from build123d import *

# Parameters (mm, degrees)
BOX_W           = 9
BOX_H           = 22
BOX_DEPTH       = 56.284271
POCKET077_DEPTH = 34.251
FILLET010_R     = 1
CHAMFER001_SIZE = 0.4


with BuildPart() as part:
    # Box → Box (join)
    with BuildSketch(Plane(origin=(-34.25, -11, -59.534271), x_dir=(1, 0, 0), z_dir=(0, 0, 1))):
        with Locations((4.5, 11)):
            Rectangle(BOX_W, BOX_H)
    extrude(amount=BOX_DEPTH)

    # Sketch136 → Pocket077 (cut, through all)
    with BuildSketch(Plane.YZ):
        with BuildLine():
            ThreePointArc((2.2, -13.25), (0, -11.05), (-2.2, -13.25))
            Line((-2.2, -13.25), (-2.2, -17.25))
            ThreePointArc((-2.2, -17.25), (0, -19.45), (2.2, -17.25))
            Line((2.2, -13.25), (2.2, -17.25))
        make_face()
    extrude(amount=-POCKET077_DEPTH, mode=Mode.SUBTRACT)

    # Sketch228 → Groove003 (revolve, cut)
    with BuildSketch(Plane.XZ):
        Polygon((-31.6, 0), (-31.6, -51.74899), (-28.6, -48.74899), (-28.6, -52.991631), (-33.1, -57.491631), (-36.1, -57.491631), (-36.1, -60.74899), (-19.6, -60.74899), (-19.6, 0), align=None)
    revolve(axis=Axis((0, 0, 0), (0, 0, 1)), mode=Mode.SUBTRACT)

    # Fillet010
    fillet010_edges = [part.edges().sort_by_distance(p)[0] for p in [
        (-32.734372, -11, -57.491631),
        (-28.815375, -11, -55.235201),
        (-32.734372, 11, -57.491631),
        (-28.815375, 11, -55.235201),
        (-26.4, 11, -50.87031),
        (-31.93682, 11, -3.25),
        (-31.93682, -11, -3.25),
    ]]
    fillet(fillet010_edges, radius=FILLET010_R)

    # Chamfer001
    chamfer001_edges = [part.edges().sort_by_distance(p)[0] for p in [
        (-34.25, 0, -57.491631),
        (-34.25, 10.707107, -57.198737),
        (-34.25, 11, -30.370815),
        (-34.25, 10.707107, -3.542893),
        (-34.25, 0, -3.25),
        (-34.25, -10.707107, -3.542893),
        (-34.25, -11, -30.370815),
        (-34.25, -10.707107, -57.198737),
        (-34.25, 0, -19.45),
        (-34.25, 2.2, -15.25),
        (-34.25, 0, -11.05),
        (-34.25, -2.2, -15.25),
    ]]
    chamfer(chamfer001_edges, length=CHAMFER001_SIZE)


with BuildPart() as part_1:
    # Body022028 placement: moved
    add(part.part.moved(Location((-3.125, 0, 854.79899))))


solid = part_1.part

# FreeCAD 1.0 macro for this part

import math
import FreeCAD as App
import Part
import Sketcher
Q = App.Units.Quantity


def edges_at(feature, points):
    """Names of the edges that pass closest to the given points."""
    edges = feature.Shape.Edges
    near = lambda p: min(range(len(edges)), key=lambda i: edges[i].distToShape(Part.Vertex(*p))[0])
    return sorted({f"Edge{near(p) + 1}" for p in points})

doc = App.newDocument("Part")
body = doc.addObject("PartDesign::Body", "Body")

# Sketch on XY plane
sketch1 = doc.addObject("Sketcher::SketchObject", "Sketch")
body.addObject(sketch1)
sketch1.AttachmentSupport = (doc.XY_Plane, [""])
sketch1.MapMode = "FlatFace"
sketch1.AttachmentOffset = App.Placement(App.Vector(0, 0, -59.534271), App.Rotation())
sketch1.addGeometry(Part.LineSegment(App.Vector(-34, 11, 0), App.Vector(-34, -11, 0)), False)
sketch1.addGeometry(Part.LineSegment(App.Vector(-34, -11, 0), App.Vector(-25, -11, 0)), False)
sketch1.addGeometry(Part.LineSegment(App.Vector(-25, -11, 0), App.Vector(-25, 11, 0)), False)
sketch1.addGeometry(Part.LineSegment(App.Vector(-25, 11, 0), App.Vector(-34, 11, 0)), False)
sketch1.addConstraint(Sketcher.Constraint("Coincident", 0, 2, 1, 1))
sketch1.addConstraint(Sketcher.Constraint("Coincident", 1, 2, 2, 1))
sketch1.addConstraint(Sketcher.Constraint("Coincident", 2, 2, 3, 1))
sketch1.addConstraint(Sketcher.Constraint("Coincident", 3, 2, 0, 1))
sketch1.addConstraint(Sketcher.Constraint("Vertical", 0))
sketch1.addConstraint(Sketcher.Constraint("Horizontal", 1))
sketch1.addConstraint(Sketcher.Constraint("Vertical", 2))
sketch1.addConstraint(Sketcher.Constraint("Horizontal", 3))
sketch1.addConstraint(Sketcher.Constraint("DistanceX", 1, 1, 1, 2, Q("9 mm")))
sketch1.addConstraint(Sketcher.Constraint("DistanceY", 0, 2, 0, 1, Q("22 mm")))
sketch1.addConstraint(Sketcher.Constraint("DistanceY", 0, 2, -1, 1, Q("11 mm")))
sketch1.addConstraint(Sketcher.Constraint("DistanceX", 0, 2, -1, 1, Q("34.25 mm")))
pad1 = doc.addObject("PartDesign::Pad", "Pad")
body.addObject(pad1)
pad1.Profile = sketch1
pad1.Length = 56.284271

# Sketch on YZ plane
sketch2 = doc.addObject("Sketcher::SketchObject", "Sketch001")
body.addObject(sketch2)
sketch2.AttachmentSupport = (doc.YZ_Plane, [""])
sketch2.MapMode = "FlatFace"
sketch2.addGeometry(Part.ArcOfCircle(Part.Circle(App.Vector(0, -13.2, 0), App.Vector(0, 0, 1), 2.2), math.radians(0), math.radians(180)), False)
sketch2.addGeometry(Part.LineSegment(App.Vector(-2.2, -13.2, 0), App.Vector(-2.2, -17.2, 0)), False)
sketch2.addGeometry(Part.ArcOfCircle(Part.Circle(App.Vector(0, -17.2, 0), App.Vector(0, 0, 1), 2.2), math.radians(180), math.radians(360)), False)
sketch2.addGeometry(Part.LineSegment(App.Vector(2.2, -17.2, 0), App.Vector(2.2, -13.2, 0)), False)
sketch2.addConstraint(Sketcher.Constraint("Tangent", 0, 2, 1, 1))
sketch2.addConstraint(Sketcher.Constraint("Tangent", 1, 2, 2, 1))
sketch2.addConstraint(Sketcher.Constraint("Tangent", 2, 2, 3, 1))
sketch2.addConstraint(Sketcher.Constraint("Tangent", 3, 2, 0, 1))
sketch2.addConstraint(Sketcher.Constraint("Vertical", 1))
sketch2.addConstraint(Sketcher.Constraint("Vertical", 3))
sketch2.addConstraint(Sketcher.Constraint("PointOnObject", 0, 3, -2))
sketch2.addConstraint(Sketcher.Constraint("Radius", 0, Q("2.2 mm")))
sketch2.addConstraint(Sketcher.Constraint("DistanceY", 1, 2, 1, 1, Q("4 mm")))
sketch2.addConstraint(Sketcher.Constraint("DistanceY", 0, 3, -1, 1, Q("13.25 mm")))
pocket1 = doc.addObject("PartDesign::Pocket", "Pocket")
body.addObject(pocket1)
pocket1.Profile = sketch2
pocket1.Type = "ThroughAll"

# Sketch on XZ plane
sketch3 = doc.addObject("Sketcher::SketchObject", "Sketch002")
body.addObject(sketch3)
sketch3.AttachmentSupport = (doc.XZ_Plane, [""])
sketch3.MapMode = "FlatFace"
sketch3.addGeometry(Part.LineSegment(App.Vector(-31.6, 0, 0), App.Vector(-31.6, -51.7, 0)), False)
sketch3.addGeometry(Part.LineSegment(App.Vector(-31.6, -51.7, 0), App.Vector(-28.6, -48.7, 0)), False)
sketch3.addGeometry(Part.LineSegment(App.Vector(-28.6, -48.7, 0), App.Vector(-28.6, -53, 0)), False)
sketch3.addGeometry(Part.LineSegment(App.Vector(-28.6, -53, 0), App.Vector(-33.1, -57.5, 0)), False)
sketch3.addGeometry(Part.LineSegment(App.Vector(-33.1, -57.5, 0), App.Vector(-36.1, -57.5, 0)), False)
sketch3.addGeometry(Part.LineSegment(App.Vector(-36.1, -57.5, 0), App.Vector(-36.1, -60.7, 0)), False)
sketch3.addGeometry(Part.LineSegment(App.Vector(-36.1, -60.7, 0), App.Vector(-19.6, -60.7, 0)), False)
sketch3.addGeometry(Part.LineSegment(App.Vector(-19.6, -60.7, 0), App.Vector(-19.6, 0, 0)), False)
sketch3.addGeometry(Part.LineSegment(App.Vector(-19.6, 0, 0), App.Vector(-31.6, 0, 0)), False)
sketch3.addConstraint(Sketcher.Constraint("Coincident", 0, 2, 1, 1))
sketch3.addConstraint(Sketcher.Constraint("Coincident", 1, 2, 2, 1))
sketch3.addConstraint(Sketcher.Constraint("Coincident", 2, 2, 3, 1))
sketch3.addConstraint(Sketcher.Constraint("Coincident", 3, 2, 4, 1))
sketch3.addConstraint(Sketcher.Constraint("Coincident", 4, 2, 5, 1))
sketch3.addConstraint(Sketcher.Constraint("Coincident", 5, 2, 6, 1))
sketch3.addConstraint(Sketcher.Constraint("Coincident", 6, 2, 7, 1))
sketch3.addConstraint(Sketcher.Constraint("Coincident", 7, 2, 8, 1))
sketch3.addConstraint(Sketcher.Constraint("Coincident", 8, 2, 0, 1))
sketch3.addConstraint(Sketcher.Constraint("Vertical", 0))
sketch3.addConstraint(Sketcher.Constraint("Vertical", 2))
sketch3.addConstraint(Sketcher.Constraint("Horizontal", 4))
sketch3.addConstraint(Sketcher.Constraint("Vertical", 5))
sketch3.addConstraint(Sketcher.Constraint("Horizontal", 6))
sketch3.addConstraint(Sketcher.Constraint("Vertical", 7))
sketch3.addConstraint(Sketcher.Constraint("Horizontal", 8))
sketch3.addConstraint(Sketcher.Constraint("PointOnObject", 7, 2, -1))
sketch3.addConstraint(Sketcher.Constraint("Parallel", 1, 3))
sketch3.addConstraint(Sketcher.Constraint("DistanceX", 4, 2, 4, 1, Q("3 mm")))
sketch3.addConstraint(Sketcher.Constraint("DistanceX", 8, 2, 8, 1, Q("12 mm")))
sketch3.addConstraint(Sketcher.Constraint("Angle", 1, Q("45 deg")))
sketch3.addConstraint(Sketcher.Constraint("DistanceX", 6, 1, 6, 2, Q("16.5 mm")))
sketch3.addConstraint(Sketcher.Constraint("DistanceX", 0, 2, 1, 2, Q("3 mm")))
sketch3.addConstraint(Sketcher.Constraint("DistanceY", 5, 2, 0, 2, Q("9 mm")))
sketch3.addConstraint(Sketcher.Constraint("DistanceX", 0, 2, -1, 1, Q("31.6 mm")))
sketch3.addConstraint(Sketcher.Constraint("DistanceY", 0, 2, 0, 1, Q("51.74899 mm")))
sketch3.addConstraint(Sketcher.Constraint("DistanceY", 2, 2, 2, 1, Q("4.242641 mm")))
groove = doc.addObject("PartDesign::Groove", "Groove")
body.addObject(groove)
groove.Profile = sketch3
groove.ReferenceAxis = (sketch3, ["V_Axis"])
groove.Angle = 360
doc.recompute()

fillet = doc.addObject("PartDesign::Fillet", "Fillet")
body.addObject(fillet)
fillet.Base = (groove, edges_at(groove, [
    (-32.734, -11, -57.492),
    (-28.815, -11, -55.235),
    (-32.734, 11, -57.492),
    (-28.815, 11, -55.235),
    (-26.4, 11, -50.87),
    (-31.937, 11, -3.25),
    (-31.937, -11, -3.25),
]))
fillet.Radius = 1
doc.recompute()

chamfer = doc.addObject("PartDesign::Chamfer", "Chamfer")
body.addObject(chamfer)
chamfer.Base = (fillet, edges_at(fillet, [
    (-34.25, 0, -57.492),
    (-34.25, 10.707, -57.199),
    (-34.25, 11, -30.371),
    (-34.25, 10.707, -3.543),
    (-34.25, 0, -3.25),
    (-34.25, -10.707, -3.543),
    (-34.25, -11, -30.371),
    (-34.25, -10.707, -57.199),
    (-34.25, 0, -19.45),
    (-34.25, 2.2, -15.25),
    (-34.25, 0, -11.05),
    (-34.25, -2.2, -15.25),
]))
chamfer.Size = 0.4
body2 = doc.addObject("PartDesign::Body", "Body001")
doc.recompute()

body.Placement = App.Placement(App.Vector(-3.125, 0, 854.79899), App.Rotation(App.Vector(0, 0, 1), 0))
boolean = doc.addObject("PartDesign::Boolean", "Boolean")
body2.addObject(boolean)
boolean.Type = "Fuse"
boolean.addObjects([body])

doc.recompute()
